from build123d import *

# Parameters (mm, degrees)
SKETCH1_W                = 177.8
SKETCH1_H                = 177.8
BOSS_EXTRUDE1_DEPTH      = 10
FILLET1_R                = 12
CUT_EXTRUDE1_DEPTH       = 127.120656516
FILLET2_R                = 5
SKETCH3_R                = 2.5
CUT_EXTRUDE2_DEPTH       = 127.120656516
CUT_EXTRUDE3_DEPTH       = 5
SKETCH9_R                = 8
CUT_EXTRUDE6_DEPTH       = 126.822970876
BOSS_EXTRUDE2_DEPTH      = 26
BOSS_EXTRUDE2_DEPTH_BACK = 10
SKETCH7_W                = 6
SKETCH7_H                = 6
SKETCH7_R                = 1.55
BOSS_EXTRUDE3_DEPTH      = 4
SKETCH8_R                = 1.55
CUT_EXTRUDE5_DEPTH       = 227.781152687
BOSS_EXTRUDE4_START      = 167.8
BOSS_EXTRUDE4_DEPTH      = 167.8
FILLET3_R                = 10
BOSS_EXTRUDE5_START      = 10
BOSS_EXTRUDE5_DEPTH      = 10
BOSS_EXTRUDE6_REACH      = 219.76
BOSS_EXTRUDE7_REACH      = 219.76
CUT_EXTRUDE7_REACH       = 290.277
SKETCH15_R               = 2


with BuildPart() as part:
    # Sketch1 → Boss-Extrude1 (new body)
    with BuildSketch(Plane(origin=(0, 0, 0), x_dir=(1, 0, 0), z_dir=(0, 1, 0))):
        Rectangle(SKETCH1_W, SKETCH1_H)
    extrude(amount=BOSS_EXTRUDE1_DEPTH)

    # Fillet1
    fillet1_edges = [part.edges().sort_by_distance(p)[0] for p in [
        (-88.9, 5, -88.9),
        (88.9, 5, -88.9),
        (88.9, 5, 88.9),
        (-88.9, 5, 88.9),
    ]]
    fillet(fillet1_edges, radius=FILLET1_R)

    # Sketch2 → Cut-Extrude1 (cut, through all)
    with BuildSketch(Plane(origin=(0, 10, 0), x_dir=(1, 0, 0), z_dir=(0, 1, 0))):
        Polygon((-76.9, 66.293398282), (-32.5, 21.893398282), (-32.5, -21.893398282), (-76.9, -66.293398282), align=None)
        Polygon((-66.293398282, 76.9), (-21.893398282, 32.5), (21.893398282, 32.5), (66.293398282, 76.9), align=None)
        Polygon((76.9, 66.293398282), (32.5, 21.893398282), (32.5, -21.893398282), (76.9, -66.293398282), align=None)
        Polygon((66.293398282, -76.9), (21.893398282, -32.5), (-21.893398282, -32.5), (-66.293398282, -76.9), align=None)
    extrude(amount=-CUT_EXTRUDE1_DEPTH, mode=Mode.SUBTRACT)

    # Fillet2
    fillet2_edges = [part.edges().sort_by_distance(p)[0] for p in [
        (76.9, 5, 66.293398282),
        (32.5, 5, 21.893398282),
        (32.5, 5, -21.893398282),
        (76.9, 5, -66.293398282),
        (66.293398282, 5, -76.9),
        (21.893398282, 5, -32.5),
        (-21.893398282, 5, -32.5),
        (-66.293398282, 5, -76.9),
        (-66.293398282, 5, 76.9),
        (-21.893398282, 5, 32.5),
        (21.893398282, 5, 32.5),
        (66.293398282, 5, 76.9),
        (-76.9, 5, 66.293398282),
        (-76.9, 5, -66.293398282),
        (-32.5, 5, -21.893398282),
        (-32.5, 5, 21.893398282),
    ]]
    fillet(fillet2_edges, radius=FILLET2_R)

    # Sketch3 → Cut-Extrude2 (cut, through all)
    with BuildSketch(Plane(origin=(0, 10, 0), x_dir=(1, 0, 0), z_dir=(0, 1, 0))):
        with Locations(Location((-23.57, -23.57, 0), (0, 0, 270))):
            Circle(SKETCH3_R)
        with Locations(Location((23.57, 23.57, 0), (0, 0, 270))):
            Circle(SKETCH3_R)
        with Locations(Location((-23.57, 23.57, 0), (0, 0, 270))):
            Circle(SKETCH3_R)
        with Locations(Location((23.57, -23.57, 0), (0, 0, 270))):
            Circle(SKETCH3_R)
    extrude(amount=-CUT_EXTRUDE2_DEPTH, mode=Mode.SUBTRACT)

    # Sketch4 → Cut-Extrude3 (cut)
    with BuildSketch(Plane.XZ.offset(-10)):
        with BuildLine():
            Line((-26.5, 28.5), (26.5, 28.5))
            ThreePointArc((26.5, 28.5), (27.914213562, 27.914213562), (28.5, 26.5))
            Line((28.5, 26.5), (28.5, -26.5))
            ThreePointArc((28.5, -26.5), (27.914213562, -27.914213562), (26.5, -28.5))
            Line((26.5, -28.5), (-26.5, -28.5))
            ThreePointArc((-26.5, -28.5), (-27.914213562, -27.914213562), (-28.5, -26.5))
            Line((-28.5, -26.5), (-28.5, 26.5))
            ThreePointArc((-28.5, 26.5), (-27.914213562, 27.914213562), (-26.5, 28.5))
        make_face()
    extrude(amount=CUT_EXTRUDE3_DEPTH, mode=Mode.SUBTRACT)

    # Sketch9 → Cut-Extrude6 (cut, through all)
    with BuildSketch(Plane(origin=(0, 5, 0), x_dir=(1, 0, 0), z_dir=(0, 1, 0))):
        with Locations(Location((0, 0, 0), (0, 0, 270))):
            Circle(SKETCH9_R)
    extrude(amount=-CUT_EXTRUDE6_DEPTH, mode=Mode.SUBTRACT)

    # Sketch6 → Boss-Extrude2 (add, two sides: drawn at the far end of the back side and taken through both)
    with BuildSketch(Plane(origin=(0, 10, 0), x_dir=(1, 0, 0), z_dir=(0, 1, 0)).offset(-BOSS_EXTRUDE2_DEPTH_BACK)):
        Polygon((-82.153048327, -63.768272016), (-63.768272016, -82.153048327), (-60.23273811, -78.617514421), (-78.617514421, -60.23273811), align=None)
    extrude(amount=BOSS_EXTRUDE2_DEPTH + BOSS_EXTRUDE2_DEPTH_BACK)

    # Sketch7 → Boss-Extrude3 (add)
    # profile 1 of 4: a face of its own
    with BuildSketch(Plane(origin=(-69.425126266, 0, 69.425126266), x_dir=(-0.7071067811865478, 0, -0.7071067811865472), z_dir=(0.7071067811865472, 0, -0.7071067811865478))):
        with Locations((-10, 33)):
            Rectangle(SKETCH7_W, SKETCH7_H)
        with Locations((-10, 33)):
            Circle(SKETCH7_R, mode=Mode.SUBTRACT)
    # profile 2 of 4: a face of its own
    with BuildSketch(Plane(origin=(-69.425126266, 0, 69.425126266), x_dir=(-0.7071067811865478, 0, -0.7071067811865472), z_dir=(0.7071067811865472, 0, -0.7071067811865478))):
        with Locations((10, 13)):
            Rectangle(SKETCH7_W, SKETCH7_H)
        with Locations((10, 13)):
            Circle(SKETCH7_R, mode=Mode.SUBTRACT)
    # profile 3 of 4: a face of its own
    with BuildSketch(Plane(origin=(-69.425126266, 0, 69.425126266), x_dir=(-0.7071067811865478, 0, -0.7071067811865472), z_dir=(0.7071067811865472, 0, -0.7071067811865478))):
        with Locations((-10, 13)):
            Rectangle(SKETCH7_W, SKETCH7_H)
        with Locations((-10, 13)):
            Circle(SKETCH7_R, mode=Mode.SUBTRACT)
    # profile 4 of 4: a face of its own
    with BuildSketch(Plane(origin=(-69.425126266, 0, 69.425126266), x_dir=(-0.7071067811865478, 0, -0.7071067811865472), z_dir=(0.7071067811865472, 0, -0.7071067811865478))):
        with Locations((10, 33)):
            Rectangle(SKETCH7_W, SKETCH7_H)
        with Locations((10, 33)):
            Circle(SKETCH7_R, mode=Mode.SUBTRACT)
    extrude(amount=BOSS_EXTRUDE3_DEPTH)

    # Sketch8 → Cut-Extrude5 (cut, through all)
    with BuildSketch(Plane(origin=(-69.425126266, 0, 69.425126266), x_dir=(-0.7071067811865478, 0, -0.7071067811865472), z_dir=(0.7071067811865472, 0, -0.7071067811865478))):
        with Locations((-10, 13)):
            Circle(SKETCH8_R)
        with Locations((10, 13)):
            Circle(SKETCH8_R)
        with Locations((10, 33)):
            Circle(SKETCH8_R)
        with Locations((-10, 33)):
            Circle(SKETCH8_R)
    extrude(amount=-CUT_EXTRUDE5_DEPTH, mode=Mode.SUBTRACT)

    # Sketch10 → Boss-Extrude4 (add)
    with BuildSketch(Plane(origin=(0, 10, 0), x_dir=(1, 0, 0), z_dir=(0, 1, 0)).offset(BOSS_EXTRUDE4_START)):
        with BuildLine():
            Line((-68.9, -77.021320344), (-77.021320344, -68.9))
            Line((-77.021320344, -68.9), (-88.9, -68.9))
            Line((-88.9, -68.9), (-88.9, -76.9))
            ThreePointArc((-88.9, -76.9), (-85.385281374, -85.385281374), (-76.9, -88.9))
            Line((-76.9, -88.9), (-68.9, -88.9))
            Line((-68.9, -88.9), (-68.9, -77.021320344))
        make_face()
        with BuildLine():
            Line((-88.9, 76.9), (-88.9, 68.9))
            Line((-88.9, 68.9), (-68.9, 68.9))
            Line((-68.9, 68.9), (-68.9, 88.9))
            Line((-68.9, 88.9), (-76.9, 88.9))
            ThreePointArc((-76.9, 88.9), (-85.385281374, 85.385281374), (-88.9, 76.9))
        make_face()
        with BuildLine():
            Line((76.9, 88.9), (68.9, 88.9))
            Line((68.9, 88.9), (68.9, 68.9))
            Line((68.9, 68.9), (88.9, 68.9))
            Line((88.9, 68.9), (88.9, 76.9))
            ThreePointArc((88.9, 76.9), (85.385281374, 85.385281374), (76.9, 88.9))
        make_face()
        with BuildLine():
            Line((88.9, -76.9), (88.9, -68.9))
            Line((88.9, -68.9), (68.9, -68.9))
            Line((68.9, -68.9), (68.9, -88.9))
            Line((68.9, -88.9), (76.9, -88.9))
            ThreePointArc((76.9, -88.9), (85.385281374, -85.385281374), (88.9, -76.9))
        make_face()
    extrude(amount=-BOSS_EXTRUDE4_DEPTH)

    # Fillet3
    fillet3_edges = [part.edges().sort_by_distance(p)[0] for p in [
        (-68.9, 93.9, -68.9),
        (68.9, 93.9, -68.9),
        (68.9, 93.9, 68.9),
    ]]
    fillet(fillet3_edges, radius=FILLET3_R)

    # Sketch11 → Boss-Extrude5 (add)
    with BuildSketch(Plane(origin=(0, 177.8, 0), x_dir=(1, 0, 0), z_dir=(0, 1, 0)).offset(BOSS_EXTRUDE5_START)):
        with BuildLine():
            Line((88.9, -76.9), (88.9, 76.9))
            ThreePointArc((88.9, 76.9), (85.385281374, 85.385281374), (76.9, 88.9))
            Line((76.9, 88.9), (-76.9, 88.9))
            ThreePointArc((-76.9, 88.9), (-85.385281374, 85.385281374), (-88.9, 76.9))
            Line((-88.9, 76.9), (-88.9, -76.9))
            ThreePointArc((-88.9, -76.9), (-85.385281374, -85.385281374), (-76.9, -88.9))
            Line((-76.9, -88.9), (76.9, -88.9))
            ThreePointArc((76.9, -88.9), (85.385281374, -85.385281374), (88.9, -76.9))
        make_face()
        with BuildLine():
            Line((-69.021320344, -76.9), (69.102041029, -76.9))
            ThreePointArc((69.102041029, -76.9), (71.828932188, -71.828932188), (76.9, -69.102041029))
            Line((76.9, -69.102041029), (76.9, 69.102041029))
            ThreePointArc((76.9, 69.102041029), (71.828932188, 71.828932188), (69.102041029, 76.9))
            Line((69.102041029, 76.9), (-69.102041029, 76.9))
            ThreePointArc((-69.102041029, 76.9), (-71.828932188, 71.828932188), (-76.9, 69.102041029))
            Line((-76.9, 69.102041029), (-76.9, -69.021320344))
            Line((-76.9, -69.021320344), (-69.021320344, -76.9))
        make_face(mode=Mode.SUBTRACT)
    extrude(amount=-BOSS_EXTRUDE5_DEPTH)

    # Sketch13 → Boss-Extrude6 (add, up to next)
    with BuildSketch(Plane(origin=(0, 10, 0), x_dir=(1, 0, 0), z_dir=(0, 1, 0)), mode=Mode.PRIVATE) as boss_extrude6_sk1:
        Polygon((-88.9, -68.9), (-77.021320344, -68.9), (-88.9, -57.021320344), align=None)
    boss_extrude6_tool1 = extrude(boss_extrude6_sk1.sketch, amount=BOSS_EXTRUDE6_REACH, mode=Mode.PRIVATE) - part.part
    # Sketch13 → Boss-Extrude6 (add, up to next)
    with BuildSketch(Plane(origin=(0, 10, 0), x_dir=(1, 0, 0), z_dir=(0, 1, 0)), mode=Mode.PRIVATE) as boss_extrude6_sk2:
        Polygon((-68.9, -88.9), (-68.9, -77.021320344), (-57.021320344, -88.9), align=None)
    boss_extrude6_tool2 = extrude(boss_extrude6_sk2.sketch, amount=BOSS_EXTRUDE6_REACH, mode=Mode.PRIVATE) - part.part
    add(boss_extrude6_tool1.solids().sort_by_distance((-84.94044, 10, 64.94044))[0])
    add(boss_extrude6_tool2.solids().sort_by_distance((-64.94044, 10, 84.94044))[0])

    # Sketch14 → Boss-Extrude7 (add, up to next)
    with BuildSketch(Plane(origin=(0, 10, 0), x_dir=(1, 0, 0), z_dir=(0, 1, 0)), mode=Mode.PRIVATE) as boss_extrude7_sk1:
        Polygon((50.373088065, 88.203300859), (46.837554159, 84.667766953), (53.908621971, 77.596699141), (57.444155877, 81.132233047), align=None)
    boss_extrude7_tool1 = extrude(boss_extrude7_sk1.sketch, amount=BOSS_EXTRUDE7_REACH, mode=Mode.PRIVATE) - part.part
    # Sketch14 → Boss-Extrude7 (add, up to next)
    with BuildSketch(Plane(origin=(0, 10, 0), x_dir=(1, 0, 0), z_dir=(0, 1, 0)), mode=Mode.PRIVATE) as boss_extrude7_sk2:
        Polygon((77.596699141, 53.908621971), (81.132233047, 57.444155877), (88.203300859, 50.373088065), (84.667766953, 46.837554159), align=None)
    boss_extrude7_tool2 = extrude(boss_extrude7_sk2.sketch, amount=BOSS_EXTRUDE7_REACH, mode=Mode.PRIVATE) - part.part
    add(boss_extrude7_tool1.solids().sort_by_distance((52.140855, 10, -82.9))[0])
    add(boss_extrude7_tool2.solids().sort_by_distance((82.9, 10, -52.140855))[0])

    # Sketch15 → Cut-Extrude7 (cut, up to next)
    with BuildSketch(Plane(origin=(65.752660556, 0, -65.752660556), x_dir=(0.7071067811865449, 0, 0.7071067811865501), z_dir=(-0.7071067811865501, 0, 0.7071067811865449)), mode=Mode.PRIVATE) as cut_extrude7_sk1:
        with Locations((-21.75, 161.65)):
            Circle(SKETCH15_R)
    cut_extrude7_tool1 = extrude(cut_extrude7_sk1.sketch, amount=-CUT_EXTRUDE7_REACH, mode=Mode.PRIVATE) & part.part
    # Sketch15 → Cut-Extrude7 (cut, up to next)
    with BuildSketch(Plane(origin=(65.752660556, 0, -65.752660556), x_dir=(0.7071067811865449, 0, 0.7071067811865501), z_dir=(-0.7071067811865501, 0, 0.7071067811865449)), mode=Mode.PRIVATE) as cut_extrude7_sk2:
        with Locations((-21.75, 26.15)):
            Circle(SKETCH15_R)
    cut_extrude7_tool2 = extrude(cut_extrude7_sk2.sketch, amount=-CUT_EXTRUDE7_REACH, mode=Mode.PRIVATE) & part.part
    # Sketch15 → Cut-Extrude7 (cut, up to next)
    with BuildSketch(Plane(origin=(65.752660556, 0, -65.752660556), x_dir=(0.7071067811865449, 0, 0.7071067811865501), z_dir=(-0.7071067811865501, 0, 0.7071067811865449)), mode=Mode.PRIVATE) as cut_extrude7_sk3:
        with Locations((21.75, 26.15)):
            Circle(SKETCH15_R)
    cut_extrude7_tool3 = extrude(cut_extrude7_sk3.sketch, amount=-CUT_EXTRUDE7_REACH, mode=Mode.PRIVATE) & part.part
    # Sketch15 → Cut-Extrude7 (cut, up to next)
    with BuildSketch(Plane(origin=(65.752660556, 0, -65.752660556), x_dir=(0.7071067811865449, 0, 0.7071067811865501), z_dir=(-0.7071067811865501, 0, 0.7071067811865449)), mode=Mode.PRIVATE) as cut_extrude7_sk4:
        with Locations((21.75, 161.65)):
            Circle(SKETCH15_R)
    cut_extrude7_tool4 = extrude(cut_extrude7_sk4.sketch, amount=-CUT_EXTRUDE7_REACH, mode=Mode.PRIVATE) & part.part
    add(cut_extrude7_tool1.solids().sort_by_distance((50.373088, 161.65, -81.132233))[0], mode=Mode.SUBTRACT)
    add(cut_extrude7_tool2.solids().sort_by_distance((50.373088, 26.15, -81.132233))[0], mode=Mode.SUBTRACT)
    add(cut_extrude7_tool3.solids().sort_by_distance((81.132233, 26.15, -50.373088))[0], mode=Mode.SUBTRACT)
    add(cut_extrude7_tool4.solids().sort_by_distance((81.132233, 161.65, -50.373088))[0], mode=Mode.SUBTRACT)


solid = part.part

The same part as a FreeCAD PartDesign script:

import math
import FreeCAD as App
import Part
import Sketcher
Q = App.Units.Quantity


def edges_at(feature, points):
    """Names of the edges that pass closest to the given points."""
    edges = feature.Shape.Edges
    near = lambda p: min(range(len(edges)), key=lambda i: edges[i].distToShape(Part.Vertex(*p))[0])
    return sorted({f"Edge{near(p) + 1}" for p in points})


def add_polygon(sketch, points):
    """Adds a closed chain of lines whose ends are joined by coincident constraints."""
    first, n = sketch.GeometryCount, len(points)
    for a, b in zip(points, points[1:] + points[:1]):
        sketch.addGeometry(Part.LineSegment(App.Vector(*a, 0), App.Vector(*b, 0)), False)
    for i in range(n):
        sketch.addConstraint(Sketcher.Constraint("Coincident", first + i, 2, first + (i + 1) % n, 1))

doc = App.newDocument("Part")
body = doc.addObject("PartDesign::Body", "Body")

# Sketch on XZ plane
sketch1 = doc.addObject("Sketcher::SketchObject", "Sketch")
body.addObject(sketch1)
sketch1.AttachmentSupport = (doc.XZ_Plane, [""])
sketch1.MapMode = "FlatFace"
add_polygon(sketch1, [(-89, -89), (-89, 89), (89, 89), (89, -89)])  # lines 0-3
sketch1.addConstraint([
    Sketcher.Constraint("Vertical", 0),
    Sketcher.Constraint("Horizontal", 1),
    Sketcher.Constraint("Vertical", 2),
    Sketcher.Constraint("Horizontal", 3),
    Sketcher.Constraint("Symmetric", 0, 2, 2, 2, -1, 1),
    Sketcher.Constraint("Equal", 3, 0),
    Sketcher.Constraint("DistanceX", 1, 1, 1, 2, 177.8),
])
pad1 = doc.addObject("PartDesign::Pad", "Pad")
body.addObject(pad1)
pad1.Profile = sketch1
pad1.Length = 10
pad1.Reversed = True
doc.recompute()

fillet = doc.addObject("PartDesign::Fillet", "Fillet")
body.addObject(fillet)
fillet.Base = (pad1, edges_at(pad1, [
    (-88.9, 5, -88.9),
    (88.9, 5, -88.9),
    (88.9, 5, 88.9),
    (-88.9, 5, 88.9),
]))
fillet.Radius = 12

# Sketch on XZ plane
sketch2 = doc.addObject("Sketcher::SketchObject", "Sketch001")
body.addObject(sketch2)
sketch2.AttachmentSupport = (doc.XZ_Plane, [""])
sketch2.MapMode = "FlatFace"
sketch2.AttachmentOffset = App.Placement(App.Vector(0, 0, -10), App.Rotation())
add_polygon(sketch2, [(-32, -22), (-77, -66), (-77, 66), (-32, 22)])  # lines 0-3
add_polygon(sketch2, [(-66, -77), (-22, -32), (22, -32), (66, -77)])  # lines 4-7
add_polygon(sketch2, [(77, -66), (32, -22), (32, 22), (77, 66)])  # lines 8-11
add_polygon(sketch2, [(66, 77), (22, 32), (-22, 32), (-66, 77)])  # lines 12-15
sketch2.addConstraint([
    Sketcher.Constraint("Vertical", 1),
    Sketcher.Constraint("Vertical", 3),
    Sketcher.Constraint("Horizontal", 5),
    Sketcher.Constraint("Horizontal", 7),
    Sketcher.Constraint("Vertical", 9),
    Sketcher.Constraint("Vertical", 11),
    Sketcher.Constraint("Horizontal", 13),
    Sketcher.Constraint("Horizontal", 15),
    Sketcher.Constraint("Symmetric", 2, 2, 8, 2, -1, 1),
    Sketcher.Constraint("Symmetric", 0, 2, 10, 2, -1, 1),
    Sketcher.Constraint("Symmetric", 4, 2, 12, 2, -1, 1),
    Sketcher.Constraint("Symmetric", 6, 2, 14, 2, -1, 1),
    Sketcher.Constraint("Perpendicular", 0, 2),
    Sketcher.Constraint("Perpendicular", 2, 4),
    Sketcher.Constraint("Perpendicular", 4, 6),
    Sketcher.Constraint("Parallel", 6, 8),
    Sketcher.Constraint("Perpendicular", 8, 10),
    Sketcher.Constraint("Parallel", 10, 12),
    Sketcher.Constraint("Perpendicular", 12, 14),
    Sketcher.Constraint("Horizontal", 3, 2, 8, 2),
    Sketcher.Constraint("Horizontal", 1, 2, 10, 2),
    Sketcher.Constraint("Vertical", 5, 2, 12, 2),
    Sketcher.Constraint("Equal", 15, 1),
    Sketcher.Constraint("Equal", 13, 3),
    Sketcher.Constraint("DistanceX", 3, 2, 8, 2, 65.0),
    Sketcher.Constraint("DistanceY", 5, 2, 12, 2, 65.0),
    Sketcher.Constraint("DistanceX", 0, 2, -1, 1, 76.9),
    Sketcher.Constraint("DistanceY", 0, 2, -1, 1, 66.293398),
])
pocket1 = doc.addObject("PartDesign::Pocket", "Pocket")
body.addObject(pocket1)
pocket1.Profile = sketch2
pocket1.Type = "ThroughAll"
pocket1.Reversed = True
doc.recompute()

fillet2 = doc.addObject("PartDesign::Fillet", "Fillet001")
body.addObject(fillet2)
fillet2.Base = (pocket1, edges_at(pocket1, [
    (76.9, 5, 66.293),
    (32.5, 5, 21.893),
    (32.5, 5, -21.893),
    (76.9, 5, -66.293),
    (66.293, 5, -76.9),
    (21.893, 5, -32.5),
    (-21.893, 5, -32.5),
    (-66.293, 5, -76.9),
    (-66.293, 5, 76.9),
    (-21.893, 5, 32.5),
    (21.893, 5, 32.5),
    (66.293, 5, 76.9),
    (-76.9, 5, 66.293),
    (-76.9, 5, -66.293),
    (-32.5, 5, -21.893),
    (-32.5, 5, 21.893),
]))
fillet2.Radius = 5

# Sketch on XZ plane
sketch3 = doc.addObject("Sketcher::SketchObject", "Sketch002")
body.addObject(sketch3)
sketch3.AttachmentSupport = (doc.XZ_Plane, [""])
sketch3.MapMode = "FlatFace"
sketch3.AttachmentOffset = App.Placement(App.Vector(0, 0, -10), App.Rotation())
sketch3.addGeometry([
    Part.Circle(App.Vector(-23.6, 23.6, 0), App.Vector(0, 0, 1), 2.5),
    Part.Circle(App.Vector(23.6, -23.6, 0), App.Vector(0, 0, 1), 2.5),
    Part.Circle(App.Vector(-23.6, -23.6, 0), App.Vector(0, 0, 1), 2.5),
    Part.Circle(App.Vector(23.6, 23.6, 0), App.Vector(0, 0, 1), 2.5),
], False)
sketch3.addConstraint([
    Sketcher.Constraint("Equal", 0, 1),
    Sketcher.Constraint("Equal", 1, 2),
    Sketcher.Constraint("Equal", 2, 3),
    Sketcher.Constraint("Symmetric", 0, 3, 1, 3, -1, 1),
    Sketcher.Constraint("Symmetric", 2, 3, 3, 3, -1, 1),
    Sketcher.Constraint("Symmetric", 1, 3, 2, 3, -2),
    Sketcher.Constraint("Diameter", 0, 5.0),
    Sketcher.Constraint("DistanceX", 0, 3, -1, 1, 23.57),
    Sketcher.Constraint("DistanceY", -1, 1, 0, 3, 23.57),
])
pocket2 = doc.addObject("PartDesign::Pocket", "Pocket001")
body.addObject(pocket2)
pocket2.Profile = sketch3
pocket2.Type = "ThroughAll"
pocket2.Reversed = True

# Sketch on XZ plane
sketch4 = doc.addObject("Sketcher::SketchObject", "Sketch003")
body.addObject(sketch4)
sketch4.AttachmentSupport = (doc.XZ_Plane, [""])
sketch4.MapMode = "FlatFace"
sketch4.AttachmentOffset = App.Placement(App.Vector(0, 0, -10), App.Rotation())
sketch4.addGeometry([
    Part.LineSegment(App.Vector(26.5, 28.5, 0), App.Vector(-26.5, 28.5, 0)),  # 0
    Part.ArcOfCircle(Part.Circle(App.Vector(-26.5, 26.5, 0), App.Vector(0, 0, 1), 2), math.radians(90), math.radians(180)),  # 1
    Part.LineSegment(App.Vector(-28.5, 26.5, 0), App.Vector(-28.5, -26.5, 0)),  # 2
    Part.ArcOfCircle(Part.Circle(App.Vector(-26.5, -26.5, 0), App.Vector(0, 0, 1), 2), math.radians(-180), math.radians(-90)),  # 3
    Part.LineSegment(App.Vector(-26.5, -28.5, 0), App.Vector(26.5, -28.5, 0)),  # 4
    Part.ArcOfCircle(Part.Circle(App.Vector(26.5, -26.5, 0), App.Vector(0, 0, 1), 2), math.radians(-90), math.radians(0)),  # 5
    Part.LineSegment(App.Vector(28.5, -26.5, 0), App.Vector(28.5, 26.5, 0)),  # 6
    Part.ArcOfCircle(Part.Circle(App.Vector(26.5, 26.5, 0), App.Vector(0, 0, 1), 2), math.radians(0), math.radians(90)),  # 7
], False)
sketch4.addConstraint([
    Sketcher.Constraint("Tangent", 0, 2, 1, 1),
    Sketcher.Constraint("Tangent", 1, 2, 2, 1),
    Sketcher.Constraint("Tangent", 2, 2, 3, 1),
    Sketcher.Constraint("Tangent", 3, 2, 4, 1),
    Sketcher.Constraint("Tangent", 4, 2, 5, 1),
    Sketcher.Constraint("Tangent", 5, 2, 6, 1),
    Sketcher.Constraint("Tangent", 6, 2, 7, 1),
    Sketcher.Constraint("Tangent", 7, 2, 0, 1),
    Sketcher.Constraint("Horizontal", 0),
    Sketcher.Constraint("Vertical", 2),
    Sketcher.Constraint("Horizontal", 4),
    Sketcher.Constraint("Vertical", 6),
    Sketcher.Constraint("Equal", 1, 3),
    Sketcher.Constraint("Equal", 3, 5),
    Sketcher.Constraint("Equal", 5, 7),
    Sketcher.Constraint("Symmetric", 1, 3, 5, 3, -1, 1),
    Sketcher.Constraint("Equal", 4, 2),
    Sketcher.Constraint("Radius", 1, 2.0),
    Sketcher.Constraint("DistanceX", 0, 2, 0, 1, 53.0),
])
pocket3 = doc.addObject("PartDesign::Pocket", "Pocket002")
body.addObject(pocket3)
pocket3.Profile = sketch4
pocket3.Length = 5
pocket3.Reversed = True

# Sketch on XZ plane
sketch5 = doc.addObject("Sketcher::SketchObject", "Sketch004")
body.addObject(sketch5)
sketch5.AttachmentSupport = (doc.XZ_Plane, [""])
sketch5.MapMode = "FlatFace"
sketch5.AttachmentOffset = App.Placement(App.Vector(0, 0, -5), App.Rotation())
sketch5.addGeometry(Part.Circle(App.Vector(0, 0, 0), App.Vector(0, 0, 1), 8), False)
sketch5.addConstraint([
    Sketcher.Constraint("Coincident", 0, 3, -1, 1),
    Sketcher.Constraint("Diameter", 0, 16.0),
])
pocket4 = doc.addObject("PartDesign::Pocket", "Pocket003")
body.addObject(pocket4)
pocket4.Profile = sketch5
pocket4.Type = "ThroughAll"
pocket4.Reversed = True

# Sketch on XZ plane
sketch6 = doc.addObject("Sketcher::SketchObject", "Sketch005")
body.addObject(sketch6)
sketch6.AttachmentSupport = (doc.XZ_Plane, [""])
sketch6.MapMode = "FlatFace"
sketch6.AttachmentOffset = App.Placement(App.Vector(0, 0, -10), App.Rotation())
add_polygon(sketch6, [(-82, 64), (-64, 82), (-60, 79), (-79, 60)])  # lines 0-3
sketch6.addConstraint([
    Sketcher.Constraint("Perpendicular", 0, 1),
    Sketcher.Constraint("Perpendicular", 1, 2),
    Sketcher.Constraint("Perpendicular", 2, 3),
    Sketcher.Constraint("Angle", 0, Q("45 deg")),
    Sketcher.Constraint("Distance", 0, 26.0),
    Sketcher.Constraint("Distance", 1, 5.0),
    Sketcher.Constraint("DistanceY", -1, 1, 0, 2, 82.153048),
    Sketcher.Constraint("DistanceX", 1, 2, -1, 1, 60.232738),
])
pad2 = doc.addObject("PartDesign::Pad", "Pad001")
body.addObject(pad2)
pad2.Profile = sketch6
pad2.Type = "TwoLengths"
pad2.Length = 26
pad2.Length2 = 10
pad2.Reversed = True

# Sketch on an angled plane
sketch7 = doc.addObject("Sketcher::SketchObject", "Sketch006")
body.addObject(sketch7)
sketch7.Placement = App.Placement(App.Vector(-69.425126, 0, 69.425126), App.Rotation(App.Vector(-0.707106781, 0, -0.707106781), App.Vector(0, 0.999999999, 0), App.Vector(0.707106781, 0, -0.707106781), "ZXY"))
add_polygon(sketch7, [(-13, 36), (-13, 30), (-7, 30), (-7, 36)])  # lines 0-3
sketch7.addGeometry(Part.Circle(App.Vector(-10, 33, 0), App.Vector(0, 0, 1), 1.6), False)  # 4
add_polygon(sketch7, [(7, 16), (7, 10), (13, 10), (13, 16)])  # lines 5-8
sketch7.addGeometry(Part.Circle(App.Vector(10, 13, 0), App.Vector(0, 0, 1), 1.6), False)  # 9
add_polygon(sketch7, [(-13, 16), (-13, 10), (-7, 10), (-7, 16)])  # lines 10-13
sketch7.addGeometry(Part.Circle(App.Vector(-10, 13, 0), App.Vector(0, 0, 1), 1.6), False)  # 14
add_polygon(sketch7, [(7, 36), (7, 30), (13, 30), (13, 36)])  # lines 15-18
sketch7.addGeometry(Part.Circle(App.Vector(10, 33, 0), App.Vector(0, 0, 1), 1.6), False)  # 19
sketch7.addConstraint([
    Sketcher.Constraint("Vertical", 0),
    Sketcher.Constraint("Horizontal", 1),
    Sketcher.Constraint("Vertical", 2),
    Sketcher.Constraint("Horizontal", 3),
    Sketcher.Constraint("Vertical", 5),
    Sketcher.Constraint("Horizontal", 6),
    Sketcher.Constraint("Vertical", 7),
    Sketcher.Constraint("Horizontal", 8),
    Sketcher.Constraint("Vertical", 10),
    Sketcher.Constraint("Horizontal", 11),
    Sketcher.Constraint("Vertical", 12),
    Sketcher.Constraint("Horizontal", 13),
    Sketcher.Constraint("Vertical", 15),
    Sketcher.Constraint("Horizontal", 16),
    Sketcher.Constraint("Vertical", 17),
    Sketcher.Constraint("Horizontal", 18),
    Sketcher.Constraint("Equal", 4, 9),
    Sketcher.Constraint("Equal", 9, 14),
    Sketcher.Constraint("Equal", 14, 19),
    Sketcher.Constraint("Symmetric", 9, 3, 14, 3, -2),
    Sketcher.Constraint("Symmetric", 4, 3, 19, 3, -2),
    Sketcher.Constraint("Symmetric", 6, 2, 10, 2, -2),
    Sketcher.Constraint("Symmetric", 8, 2, 12, 2, -2),
    Sketcher.Constraint("Symmetric", 1, 2, 15, 2, -2),
    Sketcher.Constraint("Symmetric", 3, 2, 17, 2, -2),
    Sketcher.Constraint("Vertical", 4, 3, 14, 3),
    Sketcher.Constraint("Vertical", 3, 2, 10, 2),
    Sketcher.Constraint("Vertical", 2, 2, 11, 2),
    Sketcher.Constraint("Equal", 18, 0),
    Sketcher.Constraint("Equal", 2, 5),
    Sketcher.Constraint("Diameter", 4, 3.1),
    Sketcher.Constraint("DistanceX", 1, 1, 1, 2, 6.0),
    Sketcher.Constraint("DistanceX", 4, 3, -1, 1, 10.0),
    Sketcher.Constraint("DistanceY", -1, 1, 4, 3, 33.0),
    Sketcher.Constraint("DistanceY", -1, 1, 9, 3, 13.0),
    Sketcher.Constraint("DistanceX", 0, 2, -1, 1, 13.0),
    Sketcher.Constraint("DistanceY", -1, 1, 0, 2, 30.0),
    Sketcher.Constraint("DistanceY", -1, 1, 5, 2, 10.0),
])
pad3 = doc.addObject("PartDesign::Pad", "Pad002")
body.addObject(pad3)
pad3.Profile = sketch7
pad3.Length = 4

# Sketch on an angled plane
sketch8 = doc.addObject("Sketcher::SketchObject", "Sketch007")
body.addObject(sketch8)
sketch8.Placement = App.Placement(App.Vector(-69.425126, 0, 69.425126), App.Rotation(App.Vector(-0.707106781, 0, -0.707106781), App.Vector(0, 0.999999999, 0), App.Vector(0.707106781, 0, -0.707106781), "ZXY"))
sketch8.addGeometry([
    Part.Circle(App.Vector(-10, 13, 0), App.Vector(0, 0, 1), 1.6),
    Part.Circle(App.Vector(10, 13, 0), App.Vector(0, 0, 1), 1.6),
    Part.Circle(App.Vector(10, 33, 0), App.Vector(0, 0, 1), 1.6),
    Part.Circle(App.Vector(-10, 33, 0), App.Vector(0, 0, 1), 1.6),
], False)
sketch8.addConstraint([
    Sketcher.Constraint("Equal", 0, 1),
    Sketcher.Constraint("Equal", 1, 2),
    Sketcher.Constraint("Equal", 2, 3),
    Sketcher.Constraint("Symmetric", 0, 3, 1, 3, -2),
    Sketcher.Constraint("Symmetric", 2, 3, 3, 3, -2),
    Sketcher.Constraint("Vertical", 1, 3, 2, 3),
    Sketcher.Constraint("Diameter", 0, 3.1),
    Sketcher.Constraint("DistanceX", 0, 3, -1, 1, 10.0),
    Sketcher.Constraint("DistanceY", -1, 1, 0, 3, 13.0),
    Sketcher.Constraint("DistanceY", -1, 1, 2, 3, 33.0),
])
pocket5 = doc.addObject("PartDesign::Pocket", "Pocket004")
body.addObject(pocket5)
pocket5.Profile = sketch8
pocket5.Type = "ThroughAll"

# Sketch on XZ plane
sketch9 = doc.addObject("Sketcher::SketchObject", "Sketch008")
body.addObject(sketch9)
sketch9.AttachmentSupport = (doc.XZ_Plane, [""])
sketch9.MapMode = "FlatFace"
sketch9.AttachmentOffset = App.Placement(App.Vector(0, 0, -177.8), App.Rotation())
sketch9.addGeometry([
    Part.LineSegment(App.Vector(-69, 77, 0), App.Vector(-77, 69, 0)),  # 0
    Part.LineSegment(App.Vector(-77, 69, 0), App.Vector(-89, 69, 0)),  # 1
    Part.LineSegment(App.Vector(-89, 69, 0), App.Vector(-89, 77, 0)),  # 2
    Part.ArcOfCircle(Part.Circle(App.Vector(-77, 77, 0), App.Vector(0, 0, 1), 12), math.radians(90), math.radians(180)),  # 3
    Part.LineSegment(App.Vector(-77, 89, 0), App.Vector(-69, 89, 0)),  # 4
    Part.LineSegment(App.Vector(-69, 89, 0), App.Vector(-69, 77, 0)),  # 5
    Part.LineSegment(App.Vector(-89, -77, 0), App.Vector(-89, -69, 0)),  # 6
    Part.LineSegment(App.Vector(-89, -69, 0), App.Vector(-69, -69, 0)),  # 7
    Part.LineSegment(App.Vector(-69, -69, 0), App.Vector(-69, -89, 0)),  # 8
    Part.LineSegment(App.Vector(-69, -89, 0), App.Vector(-77, -89, 0)),  # 9
    Part.ArcOfCircle(Part.Circle(App.Vector(-77, -77, 0), App.Vector(0, 0, 1), 12), math.radians(-180), math.radians(-90)),  # 10
    Part.LineSegment(App.Vector(77, -89, 0), App.Vector(69, -89, 0)),  # 11
    Part.LineSegment(App.Vector(69, -89, 0), App.Vector(69, -69, 0)),  # 12
    Part.LineSegment(App.Vector(69, -69, 0), App.Vector(89, -69, 0)),  # 13
    Part.LineSegment(App.Vector(89, -69, 0), App.Vector(89, -77, 0)),  # 14
    Part.ArcOfCircle(Part.Circle(App.Vector(77, -77, 0), App.Vector(0, 0, 1), 12), math.radians(-90), math.radians(0)),  # 15
    Part.LineSegment(App.Vector(89, 77, 0), App.Vector(89, 69, 0)),  # 16
    Part.LineSegment(App.Vector(89, 69, 0), App.Vector(69, 69, 0)),  # 17
    Part.LineSegment(App.Vector(69, 69, 0), App.Vector(69, 89, 0)),  # 18
    Part.LineSegment(App.Vector(69, 89, 0), App.Vector(77, 89, 0)),  # 19
    Part.ArcOfCircle(Part.Circle(App.Vector(77, 77, 0), App.Vector(0, 0, 1), 12), math.radians(0), math.radians(90)),  # 20
], False)
sketch9.addConstraint([
    Sketcher.Constraint("Coincident", 0, 2, 1, 1),
    Sketcher.Constraint("Coincident", 1, 2, 2, 1),
    Sketcher.Constraint("Tangent", 2, 2, 3, 2),
    Sketcher.Constraint("Tangent", 3, 1, 4, 1),
    Sketcher.Constraint("Coincident", 4, 2, 5, 1),
    Sketcher.Constraint("Coincident", 5, 2, 0, 1),
    Sketcher.Constraint("Coincident", 6, 2, 7, 1),
    Sketcher.Constraint("Coincident", 7, 2, 8, 1),
    Sketcher.Constraint("Coincident", 8, 2, 9, 1),
    Sketcher.Constraint("Tangent", 9, 2, 10, 2),
    Sketcher.Constraint("Tangent", 10, 1, 6, 1),
    Sketcher.Constraint("Coincident", 11, 2, 12, 1),
    Sketcher.Constraint("Coincident", 12, 2, 13, 1),
    Sketcher.Constraint("Coincident", 13, 2, 14, 1),
    Sketcher.Constraint("Tangent", 14, 2, 15, 2),
    Sketcher.Constraint("Tangent", 15, 1, 11, 1),
    Sketcher.Constraint("Coincident", 16, 2, 17, 1),
    Sketcher.Constraint("Coincident", 17, 2, 18, 1),
    Sketcher.Constraint("Coincident", 18, 2, 19, 1),
    Sketcher.Constraint("Tangent", 19, 2, 20, 2),
    Sketcher.Constraint("Tangent", 20, 1, 16, 1),
    Sketcher.Constraint("Horizontal", 1),
    Sketcher.Constraint("Vertical", 2),
    Sketcher.Constraint("Horizontal", 4),
    Sketcher.Constraint("Vertical", 5),
    Sketcher.Constraint("Vertical", 6),
    Sketcher.Constraint("Horizontal", 7),
    Sketcher.Constraint("Vertical", 8),
    Sketcher.Constraint("Horizontal", 9),
    Sketcher.Constraint("Horizontal", 11),
    Sketcher.Constraint("Vertical", 12),
    Sketcher.Constraint("Horizontal", 13),
    Sketcher.Constraint("Vertical", 14),
    Sketcher.Constraint("Vertical", 16),
    Sketcher.Constraint("Horizontal", 17),
    Sketcher.Constraint("Vertical", 18),
    Sketcher.Constraint("Horizontal", 19),
    Sketcher.Constraint("Equal", 3, 10),
    Sketcher.Constraint("Equal", 10, 15),
    Sketcher.Constraint("Equal", 15, 20),
    Sketcher.Constraint("Symmetric", 3, 3, 15, 3, -1, 1),
    Sketcher.Constraint("Symmetric", 10, 3, 20, 3, -1, 1),
    Sketcher.Constraint("Symmetric", 7, 2, 17, 2, -1, 1),
    Sketcher.Constraint("Symmetric", 10, 3, 15, 3, -2),
    Sketcher.Constraint("Symmetric", 7, 2, 12, 2, -2),
    Sketcher.Constraint("Horizontal", 1, 2, 16, 2),
    Sketcher.Constraint("Vertical", 5, 2, 7, 2),
    Sketcher.Constraint("Equal", 19, 2),
    Sketcher.Constraint("Equal", 1, 5),
    Sketcher.Constraint("Radius", 3, 12.0),
    Sketcher.Constraint("DistanceX", 4, 1, 4, 2, 8.0),
    Sketcher.Constraint("DistanceX", 3, 3, -1, 1, 76.9),
    Sketcher.Constraint("DistanceY", -1, 1, 3, 3, 76.9),
    Sketcher.Constraint("DistanceX", 1, 2, 1, 1, 11.87868),
])
pad4 = doc.addObject("PartDesign::Pad", "Pad003")
body.addObject(pad4)
pad4.Profile = sketch9
pad4.Length = 167.8
doc.recompute()

fillet3 = doc.addObject("PartDesign::Fillet", "Fillet002")
body.addObject(fillet3)
fillet3.Base = (pad4, edges_at(pad4, [(-68.9, 93.9, -68.9), (68.9, 93.9, -68.9), (68.9, 93.9, 68.9)]))
fillet3.Radius = 10

# Sketch on XZ plane
sketch10 = doc.addObject("Sketcher::SketchObject", "Sketch009")
body.addObject(sketch10)
sketch10.AttachmentSupport = (doc.XZ_Plane, [""])
sketch10.MapMode = "FlatFace"
sketch10.AttachmentOffset = App.Placement(App.Vector(0, 0, -187.8), App.Rotation())
sketch10.addGeometry([
    Part.LineSegment(App.Vector(89, 77, 0), App.Vector(89, -77, 0)),  # 0
    Part.ArcOfCircle(Part.Circle(App.Vector(77, -77, 0), App.Vector(0, 0, 1), 12), math.radians(-90), math.radians(0)),  # 1
    Part.LineSegment(App.Vector(77, -89, 0), App.Vector(-77, -89, 0)),  # 2
    Part.ArcOfCircle(Part.Circle(App.Vector(-77, -77, 0), App.Vector(0, 0, 1), 12), math.radians(-180), math.radians(-90)),  # 3
    Part.LineSegment(App.Vector(-89, -77, 0), App.Vector(-89, 77, 0)),  # 4
    Part.ArcOfCircle(Part.Circle(App.Vector(-77, 77, 0), App.Vector(0, 0, 1), 12), math.radians(90), math.radians(180)),  # 5
    Part.LineSegment(App.Vector(-77, 89, 0), App.Vector(77, 89, 0)),  # 6
    Part.ArcOfCircle(Part.Circle(App.Vector(77, 77, 0), App.Vector(0, 0, 1), 12), math.radians(0), math.radians(90)),  # 7
    Part.LineSegment(App.Vector(69, 77, 0), App.Vector(-69, 77, 0)),  # 8
    Part.LineSegment(App.Vector(-69, 77, 0), App.Vector(-77, 69, 0)),  # 9
    Part.LineSegment(App.Vector(-77, 69, 0), App.Vector(-77, -69, 0)),  # 10
    Part.ArcOfCircle(Part.Circle(App.Vector(-79, -79, 0), App.Vector(0, 0, 1), 10), math.radians(12), math.radians(78)),  # 11
    Part.LineSegment(App.Vector(-69, -77, 0), App.Vector(69, -77, 0)),  # 12
    Part.ArcOfCircle(Part.Circle(App.Vector(79, -79, 0), App.Vector(0, 0, 1), 10), math.radians(102), math.radians(168)),  # 13
    Part.LineSegment(App.Vector(77, -69, 0), App.Vector(77, 69, 0)),  # 14
    Part.ArcOfCircle(Part.Circle(App.Vector(79, 79, 0), App.Vector(0, 0, 1), 10), math.radians(-168), math.radians(-102)),  # 15
], False)
sketch10.addConstraint([
    Sketcher.Constraint("Tangent", 0, 2, 1, 2),
    Sketcher.Constraint("Tangent", 1, 1, 2, 1),
    Sketcher.Constraint("Tangent", 2, 2, 3, 2),
    Sketcher.Constraint("Tangent", 3, 1, 4, 1),
    Sketcher.Constraint("Tangent", 4, 2, 5, 2),
    Sketcher.Constraint("Tangent", 5, 1, 6, 1),
    Sketcher.Constraint("Tangent", 6, 2, 7, 2),
    Sketcher.Constraint("Tangent", 7, 1, 0, 1),
    Sketcher.Constraint("Coincident", 8, 2, 9, 1),
    Sketcher.Constraint("Coincident", 9, 2, 10, 1),
    Sketcher.Constraint("Coincident", 10, 2, 11, 2),
    Sketcher.Constraint("Coincident", 11, 1, 12, 1),
    Sketcher.Constraint("Coincident", 12, 2, 13, 2),
    Sketcher.Constraint("Coincident", 13, 1, 14, 1),
    Sketcher.Constraint("Coincident", 14, 2, 15, 2),
    Sketcher.Constraint("Coincident", 15, 1, 8, 1),
    Sketcher.Constraint("Vertical", 0),
    Sketcher.Constraint("Horizontal", 2),
    Sketcher.Constraint("Vertical", 4),
    Sketcher.Constraint("Horizontal", 6),
    Sketcher.Constraint("Horizontal", 8),
    Sketcher.Constraint("Vertical", 10),
    Sketcher.Constraint("Horizontal", 12),
    Sketcher.Constraint("Vertical", 14),
    Sketcher.Constraint("Equal", 1, 3),
    Sketcher.Constraint("Equal", 3, 5),
    Sketcher.Constraint("Equal", 5, 7),
    Sketcher.Constraint("Equal", 11, 13),
    Sketcher.Constraint("Equal", 13, 15),
    Sketcher.Constraint("Symmetric", 1, 3, 5, 3, -1, 1),
    Sketcher.Constraint("Symmetric", 11, 3, 15, 3, -1, 1),
    Sketcher.Constraint("Symmetric", 11, 3, 13, 3, -2),
    Sketcher.Constraint("Horizontal", 7, 1, 8, 2),
    Sketcher.Constraint("Horizontal", 3, 1, 11, 1),
    Sketcher.Constraint("Horizontal", 10, 2, 13, 1),
    Sketcher.Constraint("Vertical", 5, 1, 9, 2),
    Sketcher.Constraint("Equal", 6, 0),
    Sketcher.Constraint("Equal", 8, 10),
    Sketcher.Constraint("Equal", 12, 14),
    Sketcher.Constraint("Radius", 1, 12.0),
    Sketcher.Constraint("Radius", 11, 10.0),
    Sketcher.Constraint("DistanceX", 2, 2, 2, 1, 153.8),
    Sketcher.Constraint("DistanceX", 11, 3, 3, 3, 2.0),
    Sketcher.Constraint("DistanceX", 8, 2, 8, 1, 138.123361),
])
pad5 = doc.addObject("PartDesign::Pad", "Pad004")
body.addObject(pad5)
pad5.Profile = sketch10
pad5.Length = 10

# Sketch on XZ plane
sketch11 = doc.addObject("Sketcher::SketchObject", "Sketch010")
body.addObject(sketch11)
sketch11.AttachmentSupport = (doc.XZ_Plane, [""])
sketch11.MapMode = "FlatFace"
sketch11.AttachmentOffset = App.Placement(App.Vector(0, 0, -10), App.Rotation())
add_polygon(sketch11, [(-89, 69), (-77, 69), (-89, 57)])  # lines 0-2
sketch11.addConstraint([
    Sketcher.Constraint("Horizontal", 0),
    Sketcher.Constraint("Vertical", 2),
    Sketcher.Constraint("Equal", 0, 2),
    Sketcher.Constraint("DistanceY", -1, 1, 0, 2, 68.9),
    Sketcher.Constraint("DistanceX", 1, 2, -1, 1, 88.9),
    Sketcher.Constraint("DistanceX", 0, 1, 0, 2, 11.87868),
])
pad6 = doc.addObject("PartDesign::Pad", "Pad005")
body.addObject(pad6)
pad6.Profile = sketch11
pad6.Type = "UpToFirst"
pad6.Reversed = True

# Sketch on XZ plane
sketch12 = doc.addObject("Sketcher::SketchObject", "Sketch011")
body.addObject(sketch12)
sketch12.AttachmentSupport = (doc.XZ_Plane, [""])
sketch12.MapMode = "FlatFace"
sketch12.AttachmentOffset = App.Placement(App.Vector(0, 0, -10), App.Rotation())
add_polygon(sketch12, [(-69, 77), (-69, 89), (-57, 89)])  # lines 0-2
sketch12.addConstraint([
    Sketcher.Constraint("Vertical", 0),
    Sketcher.Constraint("Horizontal", 1),
    Sketcher.Constraint("Equal", 1, 0),
    Sketcher.Constraint("DistanceX", 0, 2, -1, 1, 68.9),
    Sketcher.Constraint("DistanceY", -1, 1, 0, 2, 88.9),
    Sketcher.Constraint("DistanceX", 1, 1, 1, 2, 11.87868),
])
pad7 = doc.addObject("PartDesign::Pad", "Pad006")
body.addObject(pad7)
pad7.Profile = sketch12
pad7.Type = "UpToFirst"
pad7.Reversed = True

# Sketch on XZ plane
sketch13 = doc.addObject("Sketcher::SketchObject", "Sketch012")
body.addObject(sketch13)
sketch13.AttachmentSupport = (doc.XZ_Plane, [""])
sketch13.MapMode = "FlatFace"
sketch13.AttachmentOffset = App.Placement(App.Vector(0, 0, -10), App.Rotation())
add_polygon(sketch13, [(50, -88), (47, -85), (54, -78), (57, -81)])  # lines 0-3
sketch13.addConstraint([
    Sketcher.Constraint("Perpendicular", 0, 1),
    Sketcher.Constraint("Perpendicular", 1, 2),
    Sketcher.Constraint("Perpendicular", 2, 3),
    Sketcher.Constraint("Angle", 0, Q("135 deg")),
    Sketcher.Constraint("Distance", 0, 5.0),
    Sketcher.Constraint("Distance", 1, 10.0),
    Sketcher.Constraint("DistanceY", 1, 2, -1, 1, 77.596699),
    Sketcher.Constraint("DistanceX", -1, 1, 1, 2, 53.908622),
])
pad8 = doc.addObject("PartDesign::Pad", "Pad007")
body.addObject(pad8)
pad8.Profile = sketch13
pad8.Type = "UpToFirst"
pad8.Reversed = True

# Sketch on XZ plane
sketch14 = doc.addObject("Sketcher::SketchObject", "Sketch013")
body.addObject(sketch14)
sketch14.AttachmentSupport = (doc.XZ_Plane, [""])
sketch14.MapMode = "FlatFace"
sketch14.AttachmentOffset = App.Placement(App.Vector(0, 0, -10), App.Rotation())
add_polygon(sketch14, [(81, -57), (78, -54), (85, -47), (88, -50)])  # lines 0-3
sketch14.addConstraint([
    Sketcher.Constraint("Perpendicular", 0, 1),
    Sketcher.Constraint("Perpendicular", 1, 2),
    Sketcher.Constraint("Perpendicular", 2, 3),
    Sketcher.Constraint("Angle", 0, Q("135 deg")),
    Sketcher.Constraint("Distance", 0, 5.0),
    Sketcher.Constraint("Distance", 1, 10.0),
    Sketcher.Constraint("DistanceX", -1, 1, 0, 2, 77.596699),
    Sketcher.Constraint("DistanceY", 0, 2, -1, 1, 53.908622),
])
pad9 = doc.addObject("PartDesign::Pad", "Pad008")
body.addObject(pad9)
pad9.Profile = sketch14
pad9.Type = "UpToFirst"
pad9.Reversed = True

# Sketch on an angled plane
sketch15 = doc.addObject("Sketcher::SketchObject", "Sketch014")
body.addObject(sketch15)
sketch15.Placement = App.Placement(App.Vector(65.752661, 0, -65.752661), App.Rotation(App.Vector(0.707106781, 0, 0.707106781), App.Vector(0, 0.999999999, 0), App.Vector(-0.707106781, 0, 0.707106781), "ZXY"))
sketch15.addGeometry(Part.Circle(App.Vector(-21.7, 161.6, 0), App.Vector(0, 0, 1), 2), False)
sketch15.addConstraint([
    Sketcher.Constraint("Diameter", 0, 4.0),
    Sketcher.Constraint("DistanceX", 0, 3, -1, 1, 21.75),
    Sketcher.Constraint("DistanceY", -1, 1, 0, 3, 161.65),
])
pocket6 = doc.addObject("PartDesign::Pocket", "Pocket005")
body.addObject(pocket6)
pocket6.Profile = sketch15
pocket6.Type = "UpToFirst"

# Sketch on an angled plane
sketch16 = doc.addObject("Sketcher::SketchObject", "Sketch015")
body.addObject(sketch16)
sketch16.Placement = App.Placement(App.Vector(65.752661, 0, -65.752661), App.Rotation(App.Vector(0.707106781, 0, 0.707106781), App.Vector(0, 0.999999999, 0), App.Vector(-0.707106781, 0, 0.707106781), "ZXY"))
sketch16.addGeometry(Part.Circle(App.Vector(-21.7, 26.1, 0), App.Vector(0, 0, 1), 2), False)
sketch16.addConstraint([
    Sketcher.Constraint("Diameter", 0, 4.0),
    Sketcher.Constraint("DistanceX", 0, 3, -1, 1, 21.75),
    Sketcher.Constraint("DistanceY", -1, 1, 0, 3, 26.15),
])
pocket7 = doc.addObject("PartDesign::Pocket", "Pocket006")
body.addObject(pocket7)
pocket7.Profile = sketch16
pocket7.Type = "UpToFirst"

# Sketch on an angled plane
sketch17 = doc.addObject("Sketcher::SketchObject", "Sketch016")
body.addObject(sketch17)
sketch17.Placement = App.Placement(App.Vector(65.752661, 0, -65.752661), App.Rotation(App.Vector(0.707106781, 0, 0.707106781), App.Vector(0, 0.999999999, 0), App.Vector(-0.707106781, 0, 0.707106781), "ZXY"))
sketch17.addGeometry(Part.Circle(App.Vector(21.7, 26.1, 0), App.Vector(0, 0, 1), 2), False)
sketch17.addConstraint([
    Sketcher.Constraint("Diameter", 0, 4.0),
    Sketcher.Constraint("DistanceX", -1, 1, 0, 3, 21.75),
    Sketcher.Constraint("DistanceY", -1, 1, 0, 3, 26.15),
])
pocket8 = doc.addObject("PartDesign::Pocket", "Pocket007")
body.addObject(pocket8)
pocket8.Profile = sketch17
pocket8.Type = "UpToFirst"

# Sketch on an angled plane
sketch18 = doc.addObject("Sketcher::SketchObject", "Sketch017")
body.addObject(sketch18)
sketch18.Placement = App.Placement(App.Vector(65.752661, 0, -65.752661), App.Rotation(App.Vector(0.707106781, 0, 0.707106781), App.Vector(0, 0.999999999, 0), App.Vector(-0.707106781, 0, 0.707106781), "ZXY"))
sketch18.addGeometry(Part.Circle(App.Vector(21.7, 161.6, 0), App.Vector(0, 0, 1), 2), False)
sketch18.addConstraint([
    Sketcher.Constraint("Diameter", 0, 4.0),
    Sketcher.Constraint("DistanceX", -1, 1, 0, 3, 21.75),
    Sketcher.Constraint("DistanceY", -1, 1, 0, 3, 161.65),
])
pocket9 = doc.addObject("PartDesign::Pocket", "Pocket008")
body.addObject(pocket9)
pocket9.Profile = sketch18
pocket9.Type = "UpToFirst"

doc.recompute()
